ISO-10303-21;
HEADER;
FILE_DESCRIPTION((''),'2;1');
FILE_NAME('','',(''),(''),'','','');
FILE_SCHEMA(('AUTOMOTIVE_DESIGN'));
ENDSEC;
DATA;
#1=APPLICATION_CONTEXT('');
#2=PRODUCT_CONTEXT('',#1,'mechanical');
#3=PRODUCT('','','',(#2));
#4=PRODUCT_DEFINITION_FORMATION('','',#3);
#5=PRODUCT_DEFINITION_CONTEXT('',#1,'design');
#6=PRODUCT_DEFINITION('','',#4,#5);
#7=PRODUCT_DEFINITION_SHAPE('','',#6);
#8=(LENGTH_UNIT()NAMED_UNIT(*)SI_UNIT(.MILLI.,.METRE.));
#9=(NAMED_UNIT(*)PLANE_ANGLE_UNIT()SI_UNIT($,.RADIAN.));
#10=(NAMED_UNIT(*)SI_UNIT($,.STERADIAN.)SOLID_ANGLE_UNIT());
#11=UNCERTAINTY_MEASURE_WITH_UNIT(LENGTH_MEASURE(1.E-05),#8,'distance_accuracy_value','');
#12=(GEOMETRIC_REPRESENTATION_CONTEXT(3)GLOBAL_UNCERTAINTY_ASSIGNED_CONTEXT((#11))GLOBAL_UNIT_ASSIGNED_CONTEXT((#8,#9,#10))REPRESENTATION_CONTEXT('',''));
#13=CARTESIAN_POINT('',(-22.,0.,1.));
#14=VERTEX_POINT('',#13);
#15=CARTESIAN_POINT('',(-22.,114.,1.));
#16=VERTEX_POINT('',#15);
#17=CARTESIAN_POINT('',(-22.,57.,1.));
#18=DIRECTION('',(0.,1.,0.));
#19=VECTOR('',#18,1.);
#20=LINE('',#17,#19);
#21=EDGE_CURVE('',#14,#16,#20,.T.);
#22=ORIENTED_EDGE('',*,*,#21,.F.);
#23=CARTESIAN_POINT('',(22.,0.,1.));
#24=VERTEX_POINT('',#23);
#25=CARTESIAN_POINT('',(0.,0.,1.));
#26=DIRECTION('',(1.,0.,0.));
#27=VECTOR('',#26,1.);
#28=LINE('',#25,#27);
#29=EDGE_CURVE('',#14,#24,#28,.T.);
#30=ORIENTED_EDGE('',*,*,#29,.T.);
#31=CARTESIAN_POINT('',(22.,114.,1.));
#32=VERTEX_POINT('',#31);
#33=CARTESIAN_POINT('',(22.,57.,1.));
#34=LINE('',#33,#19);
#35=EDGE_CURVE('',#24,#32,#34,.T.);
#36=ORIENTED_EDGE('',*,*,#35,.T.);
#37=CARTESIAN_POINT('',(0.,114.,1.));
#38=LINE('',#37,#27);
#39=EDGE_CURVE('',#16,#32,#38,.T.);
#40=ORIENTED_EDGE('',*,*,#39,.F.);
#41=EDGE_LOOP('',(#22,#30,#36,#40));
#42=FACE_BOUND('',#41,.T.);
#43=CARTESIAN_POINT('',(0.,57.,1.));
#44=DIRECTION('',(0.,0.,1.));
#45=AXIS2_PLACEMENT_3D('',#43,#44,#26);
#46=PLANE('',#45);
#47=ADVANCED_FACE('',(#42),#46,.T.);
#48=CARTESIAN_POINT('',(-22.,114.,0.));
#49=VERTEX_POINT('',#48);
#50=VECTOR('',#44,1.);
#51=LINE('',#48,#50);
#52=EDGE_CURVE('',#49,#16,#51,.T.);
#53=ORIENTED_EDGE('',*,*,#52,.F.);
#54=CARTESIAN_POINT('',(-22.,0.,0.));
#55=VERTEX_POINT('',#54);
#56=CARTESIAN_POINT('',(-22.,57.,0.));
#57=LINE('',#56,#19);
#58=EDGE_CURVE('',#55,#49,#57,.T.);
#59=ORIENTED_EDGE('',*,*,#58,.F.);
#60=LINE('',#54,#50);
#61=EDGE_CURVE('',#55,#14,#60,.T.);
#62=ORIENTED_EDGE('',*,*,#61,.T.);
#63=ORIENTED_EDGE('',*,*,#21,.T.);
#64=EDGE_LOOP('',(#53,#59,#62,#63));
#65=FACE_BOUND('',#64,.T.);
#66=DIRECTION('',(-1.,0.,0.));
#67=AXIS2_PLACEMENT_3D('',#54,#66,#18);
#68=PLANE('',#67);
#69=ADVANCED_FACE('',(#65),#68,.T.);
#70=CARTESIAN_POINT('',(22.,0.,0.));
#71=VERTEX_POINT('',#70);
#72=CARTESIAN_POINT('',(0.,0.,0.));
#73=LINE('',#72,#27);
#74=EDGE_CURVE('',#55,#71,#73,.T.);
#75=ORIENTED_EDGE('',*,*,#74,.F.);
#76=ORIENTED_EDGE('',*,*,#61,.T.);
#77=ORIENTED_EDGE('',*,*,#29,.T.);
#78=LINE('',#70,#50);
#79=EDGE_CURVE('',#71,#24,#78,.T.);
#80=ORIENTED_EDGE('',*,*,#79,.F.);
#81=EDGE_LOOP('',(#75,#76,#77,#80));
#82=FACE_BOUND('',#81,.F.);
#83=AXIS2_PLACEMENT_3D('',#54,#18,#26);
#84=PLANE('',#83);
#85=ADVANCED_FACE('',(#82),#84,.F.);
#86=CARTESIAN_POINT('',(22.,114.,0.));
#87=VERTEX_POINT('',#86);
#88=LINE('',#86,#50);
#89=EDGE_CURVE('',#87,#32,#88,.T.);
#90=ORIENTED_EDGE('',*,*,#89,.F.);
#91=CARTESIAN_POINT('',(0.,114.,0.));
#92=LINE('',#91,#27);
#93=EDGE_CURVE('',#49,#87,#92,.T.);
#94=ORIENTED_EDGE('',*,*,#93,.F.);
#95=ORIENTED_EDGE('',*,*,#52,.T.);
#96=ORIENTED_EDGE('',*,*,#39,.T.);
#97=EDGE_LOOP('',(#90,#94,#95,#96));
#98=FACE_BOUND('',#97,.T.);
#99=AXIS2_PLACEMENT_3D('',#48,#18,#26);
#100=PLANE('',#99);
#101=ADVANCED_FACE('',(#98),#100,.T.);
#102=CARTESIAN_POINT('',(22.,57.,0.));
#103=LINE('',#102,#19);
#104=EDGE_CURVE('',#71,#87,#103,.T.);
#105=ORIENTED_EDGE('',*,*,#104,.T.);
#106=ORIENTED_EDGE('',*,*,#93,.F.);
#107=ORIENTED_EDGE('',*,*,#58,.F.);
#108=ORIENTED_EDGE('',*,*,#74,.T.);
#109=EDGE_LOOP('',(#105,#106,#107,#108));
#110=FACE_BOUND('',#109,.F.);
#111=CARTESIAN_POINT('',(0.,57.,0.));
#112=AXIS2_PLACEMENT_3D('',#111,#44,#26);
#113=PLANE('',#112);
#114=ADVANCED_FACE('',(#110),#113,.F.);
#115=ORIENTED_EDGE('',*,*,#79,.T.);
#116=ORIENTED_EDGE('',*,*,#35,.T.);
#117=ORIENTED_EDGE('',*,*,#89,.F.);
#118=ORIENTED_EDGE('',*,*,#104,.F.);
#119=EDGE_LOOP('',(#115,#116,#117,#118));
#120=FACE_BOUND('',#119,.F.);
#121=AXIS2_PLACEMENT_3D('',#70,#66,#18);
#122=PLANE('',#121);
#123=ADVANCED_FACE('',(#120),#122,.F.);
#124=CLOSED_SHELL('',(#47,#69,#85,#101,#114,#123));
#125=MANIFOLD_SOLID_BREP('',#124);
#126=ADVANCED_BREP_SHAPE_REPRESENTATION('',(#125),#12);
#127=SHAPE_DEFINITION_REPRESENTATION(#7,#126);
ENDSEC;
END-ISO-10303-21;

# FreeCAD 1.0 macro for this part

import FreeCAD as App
import Part
import Sketcher


def add_polygon(sketch, points):
    """Adds a closed chain of lines whose ends are joined by coincident constraints."""
    first, n = sketch.GeometryCount, len(points)
    for a, b in zip(points, points[1:] + points[:1]):
        sketch.addGeometry(Part.LineSegment(App.Vector(*a, 0), App.Vector(*b, 0)), False)
    for i in range(n):
        sketch.addConstraint(Sketcher.Constraint("Coincident", first + i, 2, first + (i + 1) % n, 1))

doc = App.newDocument("Part")
body = doc.addObject("PartDesign::Body", "Body")

# Sketch on XY plane
sketch1 = body.newObject("Sketcher::SketchObject", "Sketch")
sketch1.AttachmentSupport = (doc.getObject("XY_Plane"), [""])
sketch1.MapMode = "FlatFace"
add_polygon(sketch1, [(-22, 114), (-22, 0), (22, 0), (22, 114)])  # lines 0-3
sketch1.addConstraint([
    Sketcher.Constraint("Vertical", 0),
    Sketcher.Constraint("Horizontal", 1),
    Sketcher.Constraint("Vertical", 2),
    Sketcher.Constraint("Horizontal", 3),
    Sketcher.Constraint("Symmetric", 0, 2, 1, 2, -1, 1),
    Sketcher.Constraint("DistanceX", 1, 1, 1, 2, 44.0),
    Sketcher.Constraint("DistanceY", 0, 2, 0, 1, 114.0),
])
pad1 = body.newObject("PartDesign::Pad", "Pad")
pad1.Profile = sketch1
pad1.Length = 1

doc.recompute()
